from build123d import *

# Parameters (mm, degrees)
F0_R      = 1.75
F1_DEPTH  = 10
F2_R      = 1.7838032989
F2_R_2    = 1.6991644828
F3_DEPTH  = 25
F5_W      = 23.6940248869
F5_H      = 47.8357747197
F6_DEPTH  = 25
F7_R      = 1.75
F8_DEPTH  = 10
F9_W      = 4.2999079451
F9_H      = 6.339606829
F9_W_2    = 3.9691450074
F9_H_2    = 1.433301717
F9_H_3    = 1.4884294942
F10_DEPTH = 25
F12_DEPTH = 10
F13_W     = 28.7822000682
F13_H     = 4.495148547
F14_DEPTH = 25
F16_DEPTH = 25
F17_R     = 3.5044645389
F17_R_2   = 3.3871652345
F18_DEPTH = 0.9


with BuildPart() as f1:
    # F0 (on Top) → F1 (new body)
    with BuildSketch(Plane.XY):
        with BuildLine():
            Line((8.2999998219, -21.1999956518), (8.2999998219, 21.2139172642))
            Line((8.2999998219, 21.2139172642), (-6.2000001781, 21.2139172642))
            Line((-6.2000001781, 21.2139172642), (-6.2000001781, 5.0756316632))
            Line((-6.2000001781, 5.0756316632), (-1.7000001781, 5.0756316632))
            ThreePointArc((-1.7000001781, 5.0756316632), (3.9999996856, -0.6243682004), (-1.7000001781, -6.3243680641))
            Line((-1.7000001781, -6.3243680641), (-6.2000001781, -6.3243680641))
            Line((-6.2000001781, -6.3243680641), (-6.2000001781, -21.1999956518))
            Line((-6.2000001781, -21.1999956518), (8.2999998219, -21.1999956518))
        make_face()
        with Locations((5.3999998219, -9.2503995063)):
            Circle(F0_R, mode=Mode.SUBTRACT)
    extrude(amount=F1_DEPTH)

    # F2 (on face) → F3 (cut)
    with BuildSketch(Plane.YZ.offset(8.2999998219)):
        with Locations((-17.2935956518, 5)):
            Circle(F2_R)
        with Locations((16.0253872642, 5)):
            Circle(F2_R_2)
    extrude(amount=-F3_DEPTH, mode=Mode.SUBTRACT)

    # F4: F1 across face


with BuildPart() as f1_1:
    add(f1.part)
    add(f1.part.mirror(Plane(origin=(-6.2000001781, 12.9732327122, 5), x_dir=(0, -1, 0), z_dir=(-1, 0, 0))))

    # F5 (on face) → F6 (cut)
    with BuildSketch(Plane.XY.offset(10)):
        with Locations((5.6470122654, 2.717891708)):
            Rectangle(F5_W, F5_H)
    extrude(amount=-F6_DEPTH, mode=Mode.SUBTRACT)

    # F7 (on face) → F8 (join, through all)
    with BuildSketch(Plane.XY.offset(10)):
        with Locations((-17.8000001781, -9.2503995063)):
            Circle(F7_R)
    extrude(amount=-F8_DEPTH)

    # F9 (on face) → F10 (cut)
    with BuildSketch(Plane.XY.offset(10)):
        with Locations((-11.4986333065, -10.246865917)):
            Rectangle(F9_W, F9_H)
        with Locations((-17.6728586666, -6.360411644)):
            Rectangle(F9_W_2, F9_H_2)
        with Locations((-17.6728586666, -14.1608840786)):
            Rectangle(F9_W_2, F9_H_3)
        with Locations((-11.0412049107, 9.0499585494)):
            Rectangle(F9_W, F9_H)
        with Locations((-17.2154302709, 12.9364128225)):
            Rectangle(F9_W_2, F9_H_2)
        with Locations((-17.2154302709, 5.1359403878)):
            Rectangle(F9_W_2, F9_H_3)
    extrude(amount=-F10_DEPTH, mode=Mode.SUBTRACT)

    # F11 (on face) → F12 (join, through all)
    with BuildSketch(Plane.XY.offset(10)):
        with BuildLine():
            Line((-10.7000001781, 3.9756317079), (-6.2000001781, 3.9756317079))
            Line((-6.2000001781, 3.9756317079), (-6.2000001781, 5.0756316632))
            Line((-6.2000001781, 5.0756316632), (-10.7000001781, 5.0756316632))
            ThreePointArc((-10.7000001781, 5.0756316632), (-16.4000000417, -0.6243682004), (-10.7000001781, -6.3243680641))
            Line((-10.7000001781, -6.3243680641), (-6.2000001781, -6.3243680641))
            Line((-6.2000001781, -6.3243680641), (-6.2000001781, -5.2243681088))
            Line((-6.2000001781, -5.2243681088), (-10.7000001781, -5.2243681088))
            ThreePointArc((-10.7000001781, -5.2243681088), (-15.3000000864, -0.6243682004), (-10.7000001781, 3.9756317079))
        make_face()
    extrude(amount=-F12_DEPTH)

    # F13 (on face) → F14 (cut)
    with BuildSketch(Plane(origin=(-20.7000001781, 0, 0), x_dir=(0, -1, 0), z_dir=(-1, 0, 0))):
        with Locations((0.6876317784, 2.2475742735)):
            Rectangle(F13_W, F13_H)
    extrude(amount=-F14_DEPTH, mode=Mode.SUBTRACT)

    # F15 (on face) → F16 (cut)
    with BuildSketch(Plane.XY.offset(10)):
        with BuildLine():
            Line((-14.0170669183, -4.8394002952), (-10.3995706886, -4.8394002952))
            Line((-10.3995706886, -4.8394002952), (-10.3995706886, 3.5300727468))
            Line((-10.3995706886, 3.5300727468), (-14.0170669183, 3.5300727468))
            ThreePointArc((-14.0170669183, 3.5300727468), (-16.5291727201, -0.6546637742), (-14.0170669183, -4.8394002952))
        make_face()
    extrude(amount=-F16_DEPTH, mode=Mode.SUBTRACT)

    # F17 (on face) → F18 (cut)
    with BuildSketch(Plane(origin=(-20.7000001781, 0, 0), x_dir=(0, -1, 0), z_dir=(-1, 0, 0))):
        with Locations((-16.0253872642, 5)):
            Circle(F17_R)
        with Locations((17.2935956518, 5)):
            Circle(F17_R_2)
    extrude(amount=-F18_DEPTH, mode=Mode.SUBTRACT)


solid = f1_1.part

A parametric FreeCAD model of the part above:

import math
import FreeCAD as App
import Part
import Sketcher
from FreeCAD import Vector

doc = App.newDocument("Part")
body = doc.addObject("PartDesign::Body", "Body")

# Sketch on XY plane
sketch1 = doc.addObject("Sketcher::SketchObject", "Sketch")
body.addObject(sketch1)
sketch1.AttachmentSupport = (doc.XY_Plane, [""])
sketch1.MapMode = "FlatFace"
sketch1.addGeometry(Part.LineSegment(Vector(8.3, -21.2, 0), Vector(8.3, 21.2, 0)), False)
sketch1.addGeometry(Part.LineSegment(Vector(8.3, 21.2, 0), Vector(-6.2, 21.2, 0)), False)
sketch1.addGeometry(Part.LineSegment(Vector(-6.2, 21.2, 0), Vector(-6.2, 5.1, 0)), False)
sketch1.addGeometry(Part.LineSegment(Vector(-6.2, 5.1, 0), Vector(-1.7, 5.1, 0)), False)
sketch1.addGeometry(Part.ArcOfCircle(Part.Circle(Vector(-1.7, -0.6, 0), Vector(0, 0, 1), 5.7), math.radians(-90), math.radians(90)), False)
sketch1.addGeometry(Part.LineSegment(Vector(-1.7, -6.3, 0), Vector(-6.2, -6.3, 0)), False)
sketch1.addGeometry(Part.LineSegment(Vector(-6.2, -6.3, 0), Vector(-6.2, -21.2, 0)), False)
sketch1.addGeometry(Part.LineSegment(Vector(-6.2, -21.2, 0), Vector(8.3, -21.2, 0)), False)
sketch1.addGeometry(Part.Circle(Vector(5.4, -9.3, 0), Vector(0, 0, 1), 1.8), False)
sketch1.addConstraint(Sketcher.Constraint("Coincident", 0, 2, 1, 1))
sketch1.addConstraint(Sketcher.Constraint("Coincident", 1, 2, 2, 1))
sketch1.addConstraint(Sketcher.Constraint("Coincident", 2, 2, 3, 1))
sketch1.addConstraint(Sketcher.Constraint("Tangent", 3, 2, 4, 2))
sketch1.addConstraint(Sketcher.Constraint("Tangent", 4, 1, 5, 1))
sketch1.addConstraint(Sketcher.Constraint("Coincident", 5, 2, 6, 1))
sketch1.addConstraint(Sketcher.Constraint("Coincident", 6, 2, 7, 1))
sketch1.addConstraint(Sketcher.Constraint("Coincident", 7, 2, 0, 1))
sketch1.addConstraint(Sketcher.Constraint("Vertical", 0))
sketch1.addConstraint(Sketcher.Constraint("Horizontal", 1))
sketch1.addConstraint(Sketcher.Constraint("Vertical", 2))
sketch1.addConstraint(Sketcher.Constraint("Horizontal", 3))
sketch1.addConstraint(Sketcher.Constraint("Horizontal", 5))
sketch1.addConstraint(Sketcher.Constraint("Vertical", 6))
sketch1.addConstraint(Sketcher.Constraint("Horizontal", 7))
sketch1.addConstraint(Sketcher.Constraint("Vertical", 2, 2, 5, 2))
sketch1.addConstraint(Sketcher.Constraint("Diameter", 8, 3.5))
sketch1.addConstraint(Sketcher.Constraint("Radius", 4, 5.7))
sketch1.addConstraint(Sketcher.Constraint("DistanceX", 1, 2, 1, 1, 14.5))
sketch1.addConstraint(Sketcher.Constraint("DistanceX", 3, 1, 3, 2, 4.5))
sketch1.addConstraint(Sketcher.Constraint("DistanceX", 4, 3, -1, 1, 1.7))
sketch1.addConstraint(Sketcher.Constraint("DistanceX", -1, 1, 8, 3, 5.4))
sketch1.addConstraint(Sketcher.Constraint("DistanceY", 8, 3, -1, 1, 9.2504))
sketch1.addConstraint(Sketcher.Constraint("DistanceY", 0, 1, 0, 2, 42.413913))
sketch1.addConstraint(Sketcher.Constraint("DistanceY", 2, 2, 2, 1, 16.138286))
sketch1.addConstraint(Sketcher.Constraint("DistanceY", 4, 3, -1, 1, 0.624368))
pad1 = doc.addObject("PartDesign::Pad", "Pad")
body.addObject(pad1)
pad1.Profile = sketch1
pad1.Length = 10

# Sketch on YZ plane
sketch2 = doc.addObject("Sketcher::SketchObject", "Sketch001")
body.addObject(sketch2)
sketch2.AttachmentSupport = (doc.YZ_Plane, [""])
sketch2.MapMode = "FlatFace"
sketch2.AttachmentOffset = App.Placement(Vector(0, 0, 8.3), App.Rotation())
sketch2.addGeometry(Part.Circle(Vector(-17.3, 5, 0), Vector(0, 0, 1), 1.8), False)
sketch2.addGeometry(Part.Circle(Vector(16, 5, 0), Vector(0, 0, 1), 1.7), False)
sketch2.addConstraint(Sketcher.Constraint("Horizontal", 0, 3, 1, 3))
sketch2.addConstraint(Sketcher.Constraint("DistanceY", -1, 1, 0, 3, 5.0))
sketch2.addConstraint(Sketcher.Constraint("Diameter", 1, 3.398329))
sketch2.addConstraint(Sketcher.Constraint("Diameter", 0, 3.567607))
sketch2.addConstraint(Sketcher.Constraint("DistanceX", 0, 3, -1, 1, 17.293596))
sketch2.addConstraint(Sketcher.Constraint("DistanceX", -1, 1, 1, 3, 16.025387))
pocket1 = doc.addObject("PartDesign::Pocket", "Pocket")
body.addObject(pocket1)
pocket1.Profile = sketch2
pocket1.Length = 25
body2 = doc.addObject("PartDesign::Body", "Body001")
doc.recompute()

body2.BaseFeature = body
doc.recompute()

mirroring = doc.addObject("Part::Mirroring", "Mirroring")
mirroring.Source = body
mirroring.Base = Vector(-6.2, 12.973233, 5)
mirroring.Normal = Vector(-1, 0, 0)
body3 = doc.addObject("PartDesign::Body", "Body002")
body3.BaseFeature = mirroring
boolean = doc.addObject("PartDesign::Boolean", "Boolean")
body2.addObject(boolean)
boolean.Type = "Fuse"
boolean.addObjects([body3])
doc.recompute()

# Sketch on XY plane
sketch3 = doc.addObject("Sketcher::SketchObject", "Sketch002")
body2.addObject(sketch3)
sketch3.AttachmentSupport = (doc.getObject("XY_Plane001"), [""])
sketch3.MapMode = "FlatFace"
sketch3.AttachmentOffset = App.Placement(Vector(0, 0, 10), App.Rotation())
sketch3.addGeometry(Part.LineSegment(Vector(-6, 27, 0), Vector(-6, -21, 0)), False)
sketch3.addGeometry(Part.LineSegment(Vector(-6, -21, 0), Vector(17, -21, 0)), False)
sketch3.addGeometry(Part.LineSegment(Vector(17, -21, 0), Vector(17, 27, 0)), False)
sketch3.addGeometry(Part.LineSegment(Vector(17, 27, 0), Vector(-6, 27, 0)), False)
sketch3.addConstraint(Sketcher.Constraint("Coincident", 0, 2, 1, 1))
sketch3.addConstraint(Sketcher.Constraint("Coincident", 1, 2, 2, 1))
sketch3.addConstraint(Sketcher.Constraint("Coincident", 2, 2, 3, 1))
sketch3.addConstraint(Sketcher.Constraint("Coincident", 3, 2, 0, 1))
sketch3.addConstraint(Sketcher.Constraint("Vertical", 0))
sketch3.addConstraint(Sketcher.Constraint("Horizontal", 1))
sketch3.addConstraint(Sketcher.Constraint("Vertical", 2))
sketch3.addConstraint(Sketcher.Constraint("Horizontal", 3))
sketch3.addConstraint(Sketcher.Constraint("DistanceX", 0, 2, -1, 1, 6.2))
sketch3.addConstraint(Sketcher.Constraint("DistanceX", 1, 1, 1, 2, 23.694025))
sketch3.addConstraint(Sketcher.Constraint("DistanceY", 0, 2, 0, 1, 47.835775))
sketch3.addConstraint(Sketcher.Constraint("DistanceY", -1, 1, 2, 2, 26.635779))
pocket2 = doc.addObject("PartDesign::Pocket", "Pocket001")
body2.addObject(pocket2)
pocket2.Profile = sketch3
pocket2.Length = 25

# Sketch on XY plane
sketch4 = doc.addObject("Sketcher::SketchObject", "Sketch003")
body2.addObject(sketch4)
sketch4.AttachmentSupport = (doc.getObject("XY_Plane001"), [""])
sketch4.MapMode = "FlatFace"
sketch4.AttachmentOffset = App.Placement(Vector(0, 0, 10), App.Rotation())
sketch4.addGeometry(Part.Circle(Vector(-17.8, -9.3, 0), Vector(0, 0, 1), 1.8), False)
sketch4.addConstraint(Sketcher.Constraint("Diameter", 0, 3.5))
sketch4.addConstraint(Sketcher.Constraint("DistanceX", 0, 3, -1, 1, 17.8))
sketch4.addConstraint(Sketcher.Constraint("DistanceY", 0, 3, -1, 1, 9.2504))
pad2 = doc.addObject("PartDesign::Pad", "Pad001")
body2.addObject(pad2)
pad2.Profile = sketch4
pad2.Length = 10
pad2.Reversed = True

# Sketch on XY plane
sketch5 = doc.addObject("Sketcher::SketchObject", "Sketch004")
body2.addObject(sketch5)
sketch5.AttachmentSupport = (doc.getObject("XY_Plane001"), [""])
sketch5.MapMode = "FlatFace"
sketch5.AttachmentOffset = App.Placement(Vector(0, 0, 10), App.Rotation())
sketch5.addGeometry(Part.LineSegment(Vector(-13.6, -7.1, 0), Vector(-13.6, -13.4, 0)), False)
sketch5.addGeometry(Part.LineSegment(Vector(-13.6, -13.4, 0), Vector(-9.3, -13.4, 0)), False)
sketch5.addGeometry(Part.LineSegment(Vector(-9.3, -13.4, 0), Vector(-9.3, -7.1, 0)), False)
sketch5.addGeometry(Part.LineSegment(Vector(-9.3, -7.1, 0), Vector(-13.6, -7.1, 0)), False)
sketch5.addGeometry(Part.LineSegment(Vector(-19.7, -5.6, 0), Vector(-19.7, -7.1, 0)), False)
sketch5.addGeometry(Part.LineSegment(Vector(-19.7, -7.1, 0), Vector(-15.7, -7.1, 0)), False)
sketch5.addGeometry(Part.LineSegment(Vector(-15.7, -7.1, 0), Vector(-15.7, -5.6, 0)), False)
sketch5.addGeometry(Part.LineSegment(Vector(-15.7, -5.6, 0), Vector(-19.7, -5.6, 0)), False)
sketch5.addGeometry(Part.LineSegment(Vector(-19.7, -13.4, 0), Vector(-19.7, -14.9, 0)), False)
sketch5.addGeometry(Part.LineSegment(Vector(-19.7, -14.9, 0), Vector(-15.7, -14.9, 0)), False)
sketch5.addGeometry(Part.LineSegment(Vector(-15.7, -14.9, 0), Vector(-15.7, -13.4, 0)), False)
sketch5.addGeometry(Part.LineSegment(Vector(-15.7, -13.4, 0), Vector(-19.7, -13.4, 0)), False)
sketch5.addGeometry(Part.LineSegment(Vector(-13.2, 12.2, 0), Vector(-13.2, 5.9, 0)), False)
sketch5.addGeometry(Part.LineSegment(Vector(-13.2, 5.9, 0), Vector(-8.9, 5.9, 0)), False)
sketch5.addGeometry(Part.LineSegment(Vector(-8.9, 5.9, 0), Vector(-8.9, 12.2, 0)), False)
sketch5.addGeometry(Part.LineSegment(Vector(-8.9, 12.2, 0), Vector(-13.2, 12.2, 0)), False)
sketch5.addGeometry(Part.LineSegment(Vector(-19.2, 13.7, 0), Vector(-19.2, 12.2, 0)), False)
sketch5.addGeometry(Part.LineSegment(Vector(-19.2, 12.2, 0), Vector(-15.2, 12.2, 0)), False)
sketch5.addGeometry(Part.LineSegment(Vector(-15.2, 12.2, 0), Vector(-15.2, 13.7, 0)), False)
sketch5.addGeometry(Part.LineSegment(Vector(-15.2, 13.7, 0), Vector(-19.2, 13.7, 0)), False)
sketch5.addGeometry(Part.LineSegment(Vector(-19.2, 5.9, 0), Vector(-19.2, 4.4, 0)), False)
sketch5.addGeometry(Part.LineSegment(Vector(-19.2, 4.4, 0), Vector(-15.2, 4.4, 0)), False)
sketch5.addGeometry(Part.LineSegment(Vector(-15.2, 4.4, 0), Vector(-15.2, 5.9, 0)), False)
sketch5.addGeometry(Part.LineSegment(Vector(-15.2, 5.9, 0), Vector(-19.2, 5.9, 0)), False)
sketch5.addConstraint(Sketcher.Constraint("Coincident", 0, 2, 1, 1))
sketch5.addConstraint(Sketcher.Constraint("Coincident", 1, 2, 2, 1))
sketch5.addConstraint(Sketcher.Constraint("Coincident", 2, 2, 3, 1))
sketch5.addConstraint(Sketcher.Constraint("Coincident", 3, 2, 0, 1))
sketch5.addConstraint(Sketcher.Constraint("Coincident", 4, 2, 5, 1))
sketch5.addConstraint(Sketcher.Constraint("Coincident", 5, 2, 6, 1))
sketch5.addConstraint(Sketcher.Constraint("Coincident", 6, 2, 7, 1))
sketch5.addConstraint(Sketcher.Constraint("Coincident", 7, 2, 4, 1))
sketch5.addConstraint(Sketcher.Constraint("Coincident", 8, 2, 9, 1))
sketch5.addConstraint(Sketcher.Constraint("Coincident", 9, 2, 10, 1))
sketch5.addConstraint(Sketcher.Constraint("Coincident", 10, 2, 11, 1))
sketch5.addConstraint(Sketcher.Constraint("Coincident", 11, 2, 8, 1))
sketch5.addConstraint(Sketcher.Constraint("Coincident", 12, 2, 13, 1))
sketch5.addConstraint(Sketcher.Constraint("Coincident", 13, 2, 14, 1))
sketch5.addConstraint(Sketcher.Constraint("Coincident", 14, 2, 15, 1))
sketch5.addConstraint(Sketcher.Constraint("Coincident", 15, 2, 12, 1))
sketch5.addConstraint(Sketcher.Constraint("Coincident", 16, 2, 17, 1))
sketch5.addConstraint(Sketcher.Constraint("Coincident", 17, 2, 18, 1))
sketch5.addConstraint(Sketcher.Constraint("Coincident", 18, 2, 19, 1))
sketch5.addConstraint(Sketcher.Constraint("Coincident", 19, 2, 16, 1))
sketch5.addConstraint(Sketcher.Constraint("Coincident", 20, 2, 21, 1))
sketch5.addConstraint(Sketcher.Constraint("Coincident", 21, 2, 22, 1))
sketch5.addConstraint(Sketcher.Constraint("Coincident", 22, 2, 23, 1))
sketch5.addConstraint(Sketcher.Constraint("Coincident", 23, 2, 20, 1))
sketch5.addConstraint(Sketcher.Constraint("Vertical", 0))
sketch5.addConstraint(Sketcher.Constraint("Horizontal", 1))
sketch5.addConstraint(Sketcher.Constraint("Vertical", 2))
sketch5.addConstraint(Sketcher.Constraint("Horizontal", 3))
sketch5.addConstraint(Sketcher.Constraint("Vertical", 4))
sketch5.addConstraint(Sketcher.Constraint("Horizontal", 5))
sketch5.addConstraint(Sketcher.Constraint("Vertical", 6))
sketch5.addConstraint(Sketcher.Constraint("Horizontal", 7))
sketch5.addConstraint(Sketcher.Constraint("Vertical", 8))
sketch5.addConstraint(Sketcher.Constraint("Horizontal", 9))
sketch5.addConstraint(Sketcher.Constraint("Vertical", 10))
sketch5.addConstraint(Sketcher.Constraint("Horizontal", 11))
sketch5.addConstraint(Sketcher.Constraint("Vertical", 12))
sketch5.addConstraint(Sketcher.Constraint("Horizontal", 13))
sketch5.addConstraint(Sketcher.Constraint("Vertical", 14))
sketch5.addConstraint(Sketcher.Constraint("Horizontal", 15))
sketch5.addConstraint(Sketcher.Constraint("Vertical", 16))
sketch5.addConstraint(Sketcher.Constraint("Horizontal", 17))
sketch5.addConstraint(Sketcher.Constraint("Vertical", 18))
sketch5.addConstraint(Sketcher.Constraint("Horizontal", 19))
sketch5.addConstraint(Sketcher.Constraint("Vertical", 20))
sketch5.addConstraint(Sketcher.Constraint("Horizontal", 21))
sketch5.addConstraint(Sketcher.Constraint("Vertical", 22))
sketch5.addConstraint(Sketcher.Constraint("Horizontal", 23))
sketch5.addConstraint(Sketcher.Constraint("Horizontal", 3, 2, 4, 2))
sketch5.addConstraint(Sketcher.Constraint("Horizontal", 1, 2, 10, 2))
sketch5.addConstraint(Sketcher.Constraint("Horizontal", 15, 2, 16, 2))
sketch5.addConstraint(Sketcher.Constraint("Horizontal", 13, 2, 22, 2))
sketch5.addConstraint(Sketcher.Constraint("Vertical", 7, 2, 8, 2))
sketch5.addConstraint(Sketcher.Constraint("Vertical", 6, 2, 9, 2))
sketch5.addConstraint(Sketcher.Constraint("Vertical", 19, 2, 20, 2))
sketch5.addConstraint(Sketcher.Constraint("Vertical", 18, 2, 21, 2))
sketch5.addConstraint(Sketcher.Constraint("Equal", 3, 13))
sketch5.addConstraint(Sketcher.Constraint("Equal", 11, 17))
sketch5.addConstraint(Sketcher.Constraint("Equal", 2, 12))
sketch5.addConstraint(Sketcher.Constraint("Equal", 6, 16))
sketch5.addConstraint(Sketcher.Constraint("Equal", 10, 20))
sketch5.addConstraint(Sketcher.Constraint("DistanceY", 4, 2, 4, 1, 1.433302))
sketch5.addConstraint(Sketcher.Constraint("DistanceY", 8, 2, 8, 1, 1.488429))
sketch5.addConstraint(Sketcher.Constraint("DistanceY", 8, 2, -1, 1, 14.905099))
sketch5.addConstraint(Sketcher.Constraint("DistanceX", 5, 2, 3, 2, 2.039699))
sketch5.addConstraint(Sketcher.Constraint("DistanceX", 17, 2, 15, 2, 2.039699))
sketch5.addConstraint(Sketcher.Constraint("DistanceX", 1, 1, 1, 2, 4.299908))
sketch5.addConstraint(Sketcher.Constraint("DistanceX", 5, 1, 5, 2, 3.969145))
sketch5.addConstraint(Sketcher.Constraint("DistanceY", 0, 2, 0, 1, 6.339607))
sketch5.addConstraint(Sketcher.Constraint("DistanceX", 1, 2, -1, 1, 9.348679))
sketch5.addConstraint(Sketcher.Constraint("DistanceX", 12, 2, -1, 1, 13.191159))
sketch5.addConstraint(Sketcher.Constraint("DistanceY", -1, 1, 14, 2, 12.219762))
pocket3 = doc.addObject("PartDesign::Pocket", "Pocket002")
body2.addObject(pocket3)
pocket3.Profile = sketch5
pocket3.Length = 25

# Sketch on XY plane
sketch6 = doc.addObject("Sketcher::SketchObject", "Sketch005")
body2.addObject(sketch6)
sketch6.AttachmentSupport = (doc.getObject("XY_Plane001"), [""])
sketch6.MapMode = "FlatFace"
sketch6.AttachmentOffset = App.Placement(Vector(0, 0, 10), App.Rotation())
sketch6.addGeometry(Part.LineSegment(Vector(-10.7, 4, 0), Vector(-6.2, 4, 0)), False)
sketch6.addGeometry(Part.LineSegment(Vector(-6.2, 4, 0), Vector(-6.2, 5.1, 0)), False)
sketch6.addGeometry(Part.LineSegment(Vector(-6.2, 5.1, 0), Vector(-10.7, 5.1, 0)), False)
sketch6.addGeometry(Part.ArcOfCircle(Part.Circle(Vector(-10.7, -0.6, 0), Vector(0, 0, 1), 5.7), math.radians(90), math.radians(270)), False)
sketch6.addGeometry(Part.LineSegment(Vector(-10.7, -6.3, 0), Vector(-6.2, -6.3, 0)), False)
sketch6.addGeometry(Part.LineSegment(Vector(-6.2, -6.3, 0), Vector(-6.2, -5.2, 0)), False)
sketch6.addGeometry(Part.LineSegment(Vector(-6.2, -5.2, 0), Vector(-10.7, -5.2, 0)), False)
sketch6.addGeometry(Part.ArcOfCircle(Part.Circle(Vector(-10.7, -0.6, 0), Vector(0, 0, 1), 4.6), math.radians(90), math.radians(270)), False)
sketch6.addConstraint(Sketcher.Constraint("Coincident", 0, 2, 1, 1))
sketch6.addConstraint(Sketcher.Constraint("Coincident", 1, 2, 2, 1))
sketch6.addConstraint(Sketcher.Constraint("Tangent", 2, 2, 3, 1))
sketch6.addConstraint(Sketcher.Constraint("Tangent", 3, 2, 4, 1))
sketch6.addConstraint(Sketcher.Constraint("Coincident", 4, 2, 5, 1))
sketch6.addConstraint(Sketcher.Constraint("Coincident", 5, 2, 6, 1))
sketch6.addConstraint(Sketcher.Constraint("Tangent", 6, 2, 7, 2))
sketch6.addConstraint(Sketcher.Constraint("Tangent", 7, 1, 0, 1))
sketch6.addConstraint(Sketcher.Constraint("Horizontal", 0))
sketch6.addConstraint(Sketcher.Constraint("Vertical", 1))
sketch6.addConstraint(Sketcher.Constraint("Horizontal", 2))
sketch6.addConstraint(Sketcher.Constraint("Horizontal", 4))
sketch6.addConstraint(Sketcher.Constraint("Vertical", 5))
sketch6.addConstraint(Sketcher.Constraint("Horizontal", 6))
sketch6.addConstraint(Sketcher.Constraint("Coincident", 7, 3, 3, 3))
sketch6.addConstraint(Sketcher.Constraint("Vertical", 1, 2, 4, 2))
sketch6.addConstraint(Sketcher.Constraint("Radius", 3, 5.7))
sketch6.addConstraint(Sketcher.Constraint("Radius", 7, 4.6))
sketch6.addConstraint(Sketcher.Constraint("DistanceX", 0, 1, 0, 2, 4.5))
sketch6.addConstraint(Sketcher.Constraint("DistanceX", 3, 3, -1, 1, 10.7))
sketch6.addConstraint(Sketcher.Constraint("DistanceY", 3, 3, -1, 1, 0.624368))
pad3 = doc.addObject("PartDesign::Pad", "Pad002")
body2.addObject(pad3)
pad3.Profile = sketch6
pad3.Length = 10
pad3.Reversed = True

# Sketch on YZ plane
sketch7 = doc.addObject("Sketcher::SketchObject", "Sketch006")
body2.addObject(sketch7)
sketch7.AttachmentSupport = (doc.getObject("YZ_Plane001"), [""])
sketch7.MapMode = "FlatFace"
sketch7.AttachmentOffset = App.Placement(Vector(0, 0, -20.7), App.Rotation())
sketch7.addGeometry(Part.LineSegment(Vector(13.7, 4.5, 0), Vector(13.7, 0, 0)), False)
sketch7.addGeometry(Part.LineSegment(Vector(13.7, 0, 0), Vector(-15.1, 0, 0)), False)
sketch7.addGeometry(Part.LineSegment(Vector(-15.1, 0, 0), Vector(-15.1, 4.5, 0)), False)
sketch7.addGeometry(Part.LineSegment(Vector(-15.1, 4.5, 0), Vector(13.7, 4.5, 0)), False)
sketch7.addConstraint(Sketcher.Constraint("Coincident", 0, 2, 1, 1))
sketch7.addConstraint(Sketcher.Constraint("Coincident", 1, 2, 2, 1))
sketch7.addConstraint(Sketcher.Constraint("Coincident", 2, 2, 3, 1))
sketch7.addConstraint(Sketcher.Constraint("Coincident", 3, 2, 0, 1))
sketch7.addConstraint(Sketcher.Constraint("Vertical", 0))
sketch7.addConstraint(Sketcher.Constraint("Horizontal", 1))
sketch7.addConstraint(Sketcher.Constraint("Vertical", 2))
sketch7.addConstraint(Sketcher.Constraint("Horizontal", 3))
sketch7.addConstraint(Sketcher.Constraint("PointOnObject", 0, 2, -1))
sketch7.addConstraint(Sketcher.Constraint("DistanceX", 1, 2, 1, 1, 28.7822))
sketch7.addConstraint(Sketcher.Constraint("DistanceY", 0, 2, 0, 1, 4.495149))
sketch7.addConstraint(Sketcher.Constraint("DistanceX", -1, 1, 0, 2, 13.703468))
pocket4 = doc.addObject("PartDesign::Pocket", "Pocket003")
body2.addObject(pocket4)
pocket4.Profile = sketch7
pocket4.Length = 25
pocket4.Reversed = True

# Sketch on XY plane
sketch8 = doc.addObject("Sketcher::SketchObject", "Sketch007")
body2.addObject(sketch8)
sketch8.AttachmentSupport = (doc.getObject("XY_Plane001"), [""])
sketch8.MapMode = "FlatFace"
sketch8.AttachmentOffset = App.Placement(Vector(0, 0, 10), App.Rotation())
sketch8.addGeometry(Part.LineSegment(Vector(-14, -4.8, 0), Vector(-10.4, -4.8, 0)), False)
sketch8.addGeometry(Part.LineSegment(Vector(-10.4, -4.8, 0), Vector(-10.4, 3.5, 0)), False)
sketch8.addGeometry(Part.LineSegment(Vector(-10.4, 3.5, 0), Vector(-14, 3.5, 0)), False)
sketch8.addGeometry(Part.ArcOfCircle(Part.Circle(Vector(-11.8, -0.7, 0), Vector(0, 0, 1), 4.7), math.radians(118), math.radians(242)), False)
sketch8.addConstraint(Sketcher.Constraint("Coincident", 0, 2, 1, 1))
sketch8.addConstraint(Sketcher.Constraint("Coincident", 1, 2, 2, 1))
sketch8.addConstraint(Sketcher.Constraint("Coincident", 2, 2, 3, 1))
sketch8.addConstraint(Sketcher.Constraint("Coincident", 3, 2, 0, 1))
sketch8.addConstraint(Sketcher.Constraint("Horizontal", 0))
sketch8.addConstraint(Sketcher.Constraint("Vertical", 1))
sketch8.addConstraint(Sketcher.Constraint("Horizontal", 2))
sketch8.addConstraint(Sketcher.Constraint("Vertical", 2, 2, 3, 2))
sketch8.addConstraint(Sketcher.Constraint("Radius", 3, 4.741579))
sketch8.addConstraint(Sketcher.Constraint("DistanceY", 0, 2, -1, 1, 4.8394))
sketch8.addConstraint(Sketcher.Constraint("DistanceX", 0, 1, 0, 2, 3.617496))
sketch8.addConstraint(Sketcher.Constraint("DistanceY", 1, 1, 1, 2, 8.369473))
sketch8.addConstraint(Sketcher.Constraint("DistanceX", 0, 2, -1, 1, 10.399571))
pocket5 = doc.addObject("PartDesign::Pocket", "Pocket004")
body2.addObject(pocket5)
pocket5.Profile = sketch8
pocket5.Length = 25

# Sketch on YZ plane
sketch9 = doc.addObject("Sketcher::SketchObject", "Sketch008")
body2.addObject(sketch9)
sketch9.AttachmentSupport = (doc.getObject("YZ_Plane001"), [""])
sketch9.MapMode = "FlatFace"
sketch9.AttachmentOffset = App.Placement(Vector(0, 0, -20.7), App.Rotation())
sketch9.addGeometry(Part.Circle(Vector(16, 5, 0), Vector(0, 0, 1), 3.5), False)
sketch9.addGeometry(Part.Circle(Vector(-17.3, 5, 0), Vector(0, 0, 1), 3.4), False)
sketch9.addConstraint(Sketcher.Constraint("Horizontal", 0, 3, 1, 3))
sketch9.addConstraint(Sketcher.Constraint("DistanceY", -1, 1, 0, 3, 5.0))
sketch9.addConstraint(Sketcher.Constraint("Diameter", 0, 7.008929))
sketch9.addConstraint(Sketcher.Constraint("Diameter", 1, 6.77433))
sketch9.addConstraint(Sketcher.Constraint("DistanceX", -1, 1, 0, 3, 16.025387))
sketch9.addConstraint(Sketcher.Constraint("DistanceX", 1, 3, -1, 1, 17.293596))
pocket6 = doc.addObject("PartDesign::Pocket", "Pocket005")
body2.addObject(pocket6)
pocket6.Profile = sketch9
pocket6.Length = 0.9
pocket6.Reversed = True
mirroring.Visibility = False

doc.recompute()
